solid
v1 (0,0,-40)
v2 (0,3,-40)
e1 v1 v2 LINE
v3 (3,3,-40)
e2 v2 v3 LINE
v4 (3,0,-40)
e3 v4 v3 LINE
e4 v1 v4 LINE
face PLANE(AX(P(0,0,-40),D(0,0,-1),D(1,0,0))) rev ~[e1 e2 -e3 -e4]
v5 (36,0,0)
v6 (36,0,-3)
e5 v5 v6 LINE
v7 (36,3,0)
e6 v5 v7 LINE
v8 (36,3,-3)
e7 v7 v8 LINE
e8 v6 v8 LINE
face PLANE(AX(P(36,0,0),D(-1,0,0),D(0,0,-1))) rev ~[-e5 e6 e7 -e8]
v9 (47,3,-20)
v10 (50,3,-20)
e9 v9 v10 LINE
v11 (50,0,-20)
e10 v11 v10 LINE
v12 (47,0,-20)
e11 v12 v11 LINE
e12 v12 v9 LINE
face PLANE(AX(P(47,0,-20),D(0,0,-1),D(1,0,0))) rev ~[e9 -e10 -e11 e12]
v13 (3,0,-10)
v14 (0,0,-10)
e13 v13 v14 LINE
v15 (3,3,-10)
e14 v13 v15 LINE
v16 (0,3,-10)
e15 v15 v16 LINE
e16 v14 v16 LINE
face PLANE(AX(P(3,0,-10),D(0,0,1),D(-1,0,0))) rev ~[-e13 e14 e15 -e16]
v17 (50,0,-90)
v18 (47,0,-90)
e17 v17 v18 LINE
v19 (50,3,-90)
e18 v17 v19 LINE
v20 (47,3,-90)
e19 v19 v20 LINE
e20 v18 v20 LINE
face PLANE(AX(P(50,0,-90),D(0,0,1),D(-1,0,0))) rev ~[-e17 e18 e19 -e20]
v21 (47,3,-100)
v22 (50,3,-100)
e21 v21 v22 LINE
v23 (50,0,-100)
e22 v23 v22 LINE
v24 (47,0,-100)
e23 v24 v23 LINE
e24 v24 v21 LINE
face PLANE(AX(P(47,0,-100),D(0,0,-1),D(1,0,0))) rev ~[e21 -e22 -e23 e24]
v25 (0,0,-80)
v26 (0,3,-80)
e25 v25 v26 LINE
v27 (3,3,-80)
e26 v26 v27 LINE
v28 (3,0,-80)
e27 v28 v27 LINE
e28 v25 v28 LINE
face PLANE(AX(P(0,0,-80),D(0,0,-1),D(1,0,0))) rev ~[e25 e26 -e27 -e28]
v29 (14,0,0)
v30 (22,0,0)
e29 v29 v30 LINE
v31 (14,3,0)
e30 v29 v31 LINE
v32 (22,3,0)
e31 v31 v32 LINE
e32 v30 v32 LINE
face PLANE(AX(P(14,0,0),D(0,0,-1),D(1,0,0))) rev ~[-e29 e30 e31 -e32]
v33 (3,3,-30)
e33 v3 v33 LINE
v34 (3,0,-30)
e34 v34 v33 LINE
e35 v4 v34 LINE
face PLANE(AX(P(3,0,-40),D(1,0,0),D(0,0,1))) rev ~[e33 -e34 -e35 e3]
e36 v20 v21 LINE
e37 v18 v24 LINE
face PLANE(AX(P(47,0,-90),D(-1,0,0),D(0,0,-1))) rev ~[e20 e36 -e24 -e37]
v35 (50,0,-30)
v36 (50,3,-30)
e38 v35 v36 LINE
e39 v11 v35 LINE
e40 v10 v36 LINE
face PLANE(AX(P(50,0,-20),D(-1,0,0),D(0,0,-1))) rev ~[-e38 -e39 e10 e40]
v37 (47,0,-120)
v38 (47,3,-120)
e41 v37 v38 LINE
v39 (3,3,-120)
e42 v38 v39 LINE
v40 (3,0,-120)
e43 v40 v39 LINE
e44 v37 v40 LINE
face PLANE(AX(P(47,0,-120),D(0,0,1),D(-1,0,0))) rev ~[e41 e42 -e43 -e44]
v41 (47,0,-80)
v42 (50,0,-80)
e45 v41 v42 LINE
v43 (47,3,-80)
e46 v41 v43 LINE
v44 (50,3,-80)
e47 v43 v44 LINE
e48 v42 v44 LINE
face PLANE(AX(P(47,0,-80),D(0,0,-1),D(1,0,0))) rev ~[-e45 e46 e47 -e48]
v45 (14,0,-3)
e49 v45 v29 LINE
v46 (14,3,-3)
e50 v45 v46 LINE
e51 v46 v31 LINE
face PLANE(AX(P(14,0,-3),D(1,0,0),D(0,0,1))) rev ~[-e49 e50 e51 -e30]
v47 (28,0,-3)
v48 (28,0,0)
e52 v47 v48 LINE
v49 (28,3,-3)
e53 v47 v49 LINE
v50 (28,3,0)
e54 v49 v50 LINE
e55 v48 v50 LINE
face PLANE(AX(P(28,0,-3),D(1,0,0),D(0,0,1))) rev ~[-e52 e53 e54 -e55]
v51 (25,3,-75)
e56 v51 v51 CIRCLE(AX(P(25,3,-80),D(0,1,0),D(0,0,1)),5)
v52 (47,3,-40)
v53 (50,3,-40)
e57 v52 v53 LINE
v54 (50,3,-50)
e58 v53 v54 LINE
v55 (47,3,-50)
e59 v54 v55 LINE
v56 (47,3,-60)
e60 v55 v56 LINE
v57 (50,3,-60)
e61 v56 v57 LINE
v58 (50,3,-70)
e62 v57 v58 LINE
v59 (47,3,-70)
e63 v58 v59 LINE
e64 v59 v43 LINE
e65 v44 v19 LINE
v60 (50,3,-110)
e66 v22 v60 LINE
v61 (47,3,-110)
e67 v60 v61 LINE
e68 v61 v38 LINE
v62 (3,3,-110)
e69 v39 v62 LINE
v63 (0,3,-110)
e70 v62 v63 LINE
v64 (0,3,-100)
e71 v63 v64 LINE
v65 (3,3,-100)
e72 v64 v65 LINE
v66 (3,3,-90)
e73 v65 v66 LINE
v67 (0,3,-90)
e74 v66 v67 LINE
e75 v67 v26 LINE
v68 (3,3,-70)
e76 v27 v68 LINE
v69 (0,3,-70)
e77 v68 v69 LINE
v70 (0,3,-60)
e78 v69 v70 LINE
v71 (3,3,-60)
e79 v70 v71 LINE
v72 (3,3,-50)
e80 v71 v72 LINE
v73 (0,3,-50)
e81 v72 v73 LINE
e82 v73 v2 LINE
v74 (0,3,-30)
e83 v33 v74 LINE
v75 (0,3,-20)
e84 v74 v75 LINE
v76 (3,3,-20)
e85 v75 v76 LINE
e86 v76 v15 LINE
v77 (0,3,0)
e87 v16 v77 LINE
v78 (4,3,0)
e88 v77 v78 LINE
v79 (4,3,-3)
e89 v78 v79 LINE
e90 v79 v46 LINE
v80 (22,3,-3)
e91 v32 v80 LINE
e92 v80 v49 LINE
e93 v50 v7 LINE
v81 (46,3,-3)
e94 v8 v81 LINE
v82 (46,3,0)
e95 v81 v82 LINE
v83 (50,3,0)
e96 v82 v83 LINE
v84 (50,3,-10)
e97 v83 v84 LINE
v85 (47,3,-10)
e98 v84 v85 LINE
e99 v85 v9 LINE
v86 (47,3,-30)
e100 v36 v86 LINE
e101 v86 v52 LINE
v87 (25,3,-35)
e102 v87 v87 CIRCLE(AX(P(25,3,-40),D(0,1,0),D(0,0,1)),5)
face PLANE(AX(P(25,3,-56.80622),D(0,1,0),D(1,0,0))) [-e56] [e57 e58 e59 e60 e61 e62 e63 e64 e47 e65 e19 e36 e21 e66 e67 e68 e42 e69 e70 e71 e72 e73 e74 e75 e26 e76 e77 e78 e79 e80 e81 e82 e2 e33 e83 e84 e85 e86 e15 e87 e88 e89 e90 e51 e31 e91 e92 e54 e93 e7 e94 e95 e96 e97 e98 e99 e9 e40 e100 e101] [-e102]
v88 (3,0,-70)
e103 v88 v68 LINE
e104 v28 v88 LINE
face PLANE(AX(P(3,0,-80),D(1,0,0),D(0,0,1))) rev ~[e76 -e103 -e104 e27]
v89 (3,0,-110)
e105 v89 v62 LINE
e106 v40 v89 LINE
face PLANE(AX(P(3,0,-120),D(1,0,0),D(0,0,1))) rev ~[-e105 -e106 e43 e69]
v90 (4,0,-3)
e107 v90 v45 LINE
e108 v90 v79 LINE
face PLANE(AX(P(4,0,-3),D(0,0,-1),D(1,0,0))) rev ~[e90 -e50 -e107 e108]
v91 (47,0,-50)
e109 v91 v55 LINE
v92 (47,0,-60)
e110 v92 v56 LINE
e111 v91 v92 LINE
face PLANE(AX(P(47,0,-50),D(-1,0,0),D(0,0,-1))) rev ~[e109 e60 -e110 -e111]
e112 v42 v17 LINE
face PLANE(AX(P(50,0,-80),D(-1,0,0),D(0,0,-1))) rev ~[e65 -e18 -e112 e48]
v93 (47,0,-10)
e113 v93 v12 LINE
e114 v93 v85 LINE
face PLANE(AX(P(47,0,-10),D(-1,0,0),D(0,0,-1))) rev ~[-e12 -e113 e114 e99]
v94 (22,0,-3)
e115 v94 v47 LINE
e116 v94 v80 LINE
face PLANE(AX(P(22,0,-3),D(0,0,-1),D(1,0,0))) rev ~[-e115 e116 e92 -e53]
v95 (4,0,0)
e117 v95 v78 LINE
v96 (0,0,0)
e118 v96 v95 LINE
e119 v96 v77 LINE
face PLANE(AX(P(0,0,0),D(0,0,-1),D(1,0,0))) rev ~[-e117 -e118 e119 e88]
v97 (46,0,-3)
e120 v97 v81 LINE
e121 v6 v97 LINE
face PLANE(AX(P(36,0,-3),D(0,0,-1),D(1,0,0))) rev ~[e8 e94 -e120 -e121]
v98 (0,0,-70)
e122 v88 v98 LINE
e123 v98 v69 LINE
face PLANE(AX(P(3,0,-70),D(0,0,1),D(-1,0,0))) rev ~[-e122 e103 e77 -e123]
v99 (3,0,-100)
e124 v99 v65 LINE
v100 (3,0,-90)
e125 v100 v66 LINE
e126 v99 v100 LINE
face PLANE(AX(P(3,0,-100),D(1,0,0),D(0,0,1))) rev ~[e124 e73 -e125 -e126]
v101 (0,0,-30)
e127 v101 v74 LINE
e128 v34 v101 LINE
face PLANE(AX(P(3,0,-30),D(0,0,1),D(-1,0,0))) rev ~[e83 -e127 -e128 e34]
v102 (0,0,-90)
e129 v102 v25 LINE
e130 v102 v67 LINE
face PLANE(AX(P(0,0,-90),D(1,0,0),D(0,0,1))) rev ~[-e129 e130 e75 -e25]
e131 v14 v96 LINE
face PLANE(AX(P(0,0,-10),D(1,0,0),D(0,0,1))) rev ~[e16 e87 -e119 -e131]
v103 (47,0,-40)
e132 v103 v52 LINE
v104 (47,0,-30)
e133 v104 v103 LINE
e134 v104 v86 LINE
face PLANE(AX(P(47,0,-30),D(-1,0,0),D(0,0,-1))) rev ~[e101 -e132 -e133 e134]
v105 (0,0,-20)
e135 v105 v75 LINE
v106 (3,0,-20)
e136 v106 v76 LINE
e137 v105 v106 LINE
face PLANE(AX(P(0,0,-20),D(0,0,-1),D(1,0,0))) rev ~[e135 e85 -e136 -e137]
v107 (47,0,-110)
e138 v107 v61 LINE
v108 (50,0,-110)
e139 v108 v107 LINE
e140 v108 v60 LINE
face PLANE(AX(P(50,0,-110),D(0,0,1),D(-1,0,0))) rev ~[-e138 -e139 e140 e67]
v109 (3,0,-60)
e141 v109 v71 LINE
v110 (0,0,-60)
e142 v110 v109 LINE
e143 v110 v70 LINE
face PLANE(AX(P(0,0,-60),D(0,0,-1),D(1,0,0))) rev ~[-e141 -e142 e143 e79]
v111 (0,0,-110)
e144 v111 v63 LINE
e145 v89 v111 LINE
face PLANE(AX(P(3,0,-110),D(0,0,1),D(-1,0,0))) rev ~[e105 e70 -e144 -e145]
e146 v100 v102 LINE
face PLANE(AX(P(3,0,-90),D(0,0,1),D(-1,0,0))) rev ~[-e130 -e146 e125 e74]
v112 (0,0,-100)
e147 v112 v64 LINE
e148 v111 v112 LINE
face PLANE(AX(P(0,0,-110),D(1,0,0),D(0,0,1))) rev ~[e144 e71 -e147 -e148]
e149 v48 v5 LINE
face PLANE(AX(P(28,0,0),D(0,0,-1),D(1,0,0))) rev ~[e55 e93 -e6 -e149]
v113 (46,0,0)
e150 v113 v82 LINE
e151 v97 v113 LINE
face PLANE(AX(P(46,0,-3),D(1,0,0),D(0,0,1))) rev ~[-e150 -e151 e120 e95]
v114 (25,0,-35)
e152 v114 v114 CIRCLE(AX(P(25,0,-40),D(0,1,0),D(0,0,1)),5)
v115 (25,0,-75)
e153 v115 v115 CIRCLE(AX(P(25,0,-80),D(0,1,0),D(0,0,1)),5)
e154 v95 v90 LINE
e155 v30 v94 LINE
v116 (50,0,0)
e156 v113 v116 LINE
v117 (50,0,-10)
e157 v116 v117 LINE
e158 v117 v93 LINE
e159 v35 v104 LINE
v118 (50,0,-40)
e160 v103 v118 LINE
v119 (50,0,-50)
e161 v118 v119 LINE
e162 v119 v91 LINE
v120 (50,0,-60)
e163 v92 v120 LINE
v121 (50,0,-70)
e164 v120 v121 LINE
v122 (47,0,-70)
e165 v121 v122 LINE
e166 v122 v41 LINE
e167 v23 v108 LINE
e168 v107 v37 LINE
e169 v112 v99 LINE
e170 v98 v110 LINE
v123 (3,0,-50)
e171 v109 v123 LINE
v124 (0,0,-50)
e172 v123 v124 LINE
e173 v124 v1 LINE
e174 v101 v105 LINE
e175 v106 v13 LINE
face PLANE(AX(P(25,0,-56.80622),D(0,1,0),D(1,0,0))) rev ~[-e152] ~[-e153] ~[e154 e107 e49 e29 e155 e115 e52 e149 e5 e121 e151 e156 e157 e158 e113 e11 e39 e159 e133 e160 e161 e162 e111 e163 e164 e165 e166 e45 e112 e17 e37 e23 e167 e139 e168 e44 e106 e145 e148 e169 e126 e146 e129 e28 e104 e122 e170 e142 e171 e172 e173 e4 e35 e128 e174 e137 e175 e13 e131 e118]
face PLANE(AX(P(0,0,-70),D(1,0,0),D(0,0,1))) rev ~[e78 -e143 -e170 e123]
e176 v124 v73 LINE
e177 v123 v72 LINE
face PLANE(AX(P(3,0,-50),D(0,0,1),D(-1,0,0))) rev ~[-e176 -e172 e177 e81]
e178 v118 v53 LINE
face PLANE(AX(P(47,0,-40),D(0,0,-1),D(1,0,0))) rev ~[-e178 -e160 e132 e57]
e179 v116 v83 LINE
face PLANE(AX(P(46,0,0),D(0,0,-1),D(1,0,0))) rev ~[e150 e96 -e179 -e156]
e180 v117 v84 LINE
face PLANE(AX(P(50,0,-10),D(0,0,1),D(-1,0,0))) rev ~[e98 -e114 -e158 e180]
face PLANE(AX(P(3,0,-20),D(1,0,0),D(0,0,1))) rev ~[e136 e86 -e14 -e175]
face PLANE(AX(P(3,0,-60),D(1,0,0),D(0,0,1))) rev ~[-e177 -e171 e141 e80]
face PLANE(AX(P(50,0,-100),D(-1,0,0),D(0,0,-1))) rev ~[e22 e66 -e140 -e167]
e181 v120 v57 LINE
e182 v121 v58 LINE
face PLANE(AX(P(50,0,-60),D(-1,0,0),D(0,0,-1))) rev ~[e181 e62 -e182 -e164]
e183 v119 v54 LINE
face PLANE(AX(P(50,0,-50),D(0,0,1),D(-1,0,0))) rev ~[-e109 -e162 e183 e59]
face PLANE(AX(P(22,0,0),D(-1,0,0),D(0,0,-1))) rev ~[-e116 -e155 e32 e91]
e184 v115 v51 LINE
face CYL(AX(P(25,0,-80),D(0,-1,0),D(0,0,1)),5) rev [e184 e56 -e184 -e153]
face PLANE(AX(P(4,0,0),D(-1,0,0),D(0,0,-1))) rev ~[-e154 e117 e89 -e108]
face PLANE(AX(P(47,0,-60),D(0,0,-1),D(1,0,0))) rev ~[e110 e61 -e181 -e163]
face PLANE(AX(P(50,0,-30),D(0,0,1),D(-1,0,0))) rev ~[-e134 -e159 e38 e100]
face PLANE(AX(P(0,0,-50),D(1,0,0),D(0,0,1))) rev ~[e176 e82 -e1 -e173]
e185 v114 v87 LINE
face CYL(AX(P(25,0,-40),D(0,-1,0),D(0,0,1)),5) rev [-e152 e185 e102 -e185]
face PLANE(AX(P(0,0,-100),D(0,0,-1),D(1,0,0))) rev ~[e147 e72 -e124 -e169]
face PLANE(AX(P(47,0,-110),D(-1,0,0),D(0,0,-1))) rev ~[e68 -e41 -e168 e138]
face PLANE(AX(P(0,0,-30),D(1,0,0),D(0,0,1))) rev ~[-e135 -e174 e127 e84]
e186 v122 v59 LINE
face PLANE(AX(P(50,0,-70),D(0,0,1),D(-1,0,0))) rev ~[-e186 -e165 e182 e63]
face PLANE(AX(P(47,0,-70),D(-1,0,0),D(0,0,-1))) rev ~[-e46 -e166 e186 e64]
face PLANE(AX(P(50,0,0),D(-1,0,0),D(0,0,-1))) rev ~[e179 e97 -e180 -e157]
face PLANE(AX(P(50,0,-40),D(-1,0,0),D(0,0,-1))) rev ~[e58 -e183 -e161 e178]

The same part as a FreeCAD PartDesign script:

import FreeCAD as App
import Part
import Sketcher


def add_polygon(sketch, points):
    """Adds a closed chain of lines whose ends are joined by coincident constraints."""
    first, n = sketch.GeometryCount, len(points)
    for a, b in zip(points, points[1:] + points[:1]):
        sketch.addGeometry(Part.LineSegment(App.Vector(*a, 0), App.Vector(*b, 0)), False)
    for i in range(n):
        sketch.addConstraint(Sketcher.Constraint("Coincident", first + i, 2, first + (i + 1) % n, 1))

doc = App.newDocument("Part")
params = doc.addObject("Spreadsheet::Sheet", "Params")
for row, (alias, value) in enumerate([
    ("sketch1_diameter", "10 mm"),
    ("sketch1_width", "3 mm"),
    ("sketch1_width2", "4 mm"),
    ("sketch1_width3", "10 mm"),
    ("sketch1_width4", "8 mm"),
    ("pad1_length", "3 mm"),
], start=1):
    params.set(f"A{row}", alias)
    params.set(f"B{row}", "=" + value)
    params.setAlias(f"B{row}", alias)

body = doc.addObject("PartDesign::Body", "Body")

sketch1 = body.newObject("Sketcher::SketchObject", "Sketch")
sketch1.AttachmentSupport = (doc.getObject("XZ_Plane"), [""])
sketch1.MapMode = "FlatFace"
add_polygon(sketch1, [(3, -10), (0, -10), (0, 0), (4, 0), (4, -3), (14, -3), (14, 0), (22, 0), (22, -3), (28, -3), (28, 0), (36, 0), (36, -3), (46, -3), (46, 0), (50, 0), (50, -10), (47, -10), (47, -20), (50, -20), (50, -30), (47, -30), (47, -40), (50, -40), (50, -50), (47, -50), (47, -60), (50, -60), (50, -70), (47, -70), (47, -80), (50, -80), (50, -90), (47, -90), (47, -100), (50, -100), (50, -110), (47, -110), (47, -120), (3, -120), (3, -110), (0, -110), (0, -100), (3, -100), (3, -90), (0, -90), (0, -80), (3, -80), (3, -70), (0, -70), (0, -60), (3, -60), (3, -50), (0, -50), (0, -40), (3, -40), (3, -30), (0, -30), (0, -20), (3, -20)])
sketch1.addGeometry(Part.Circle(App.Vector(25, -40, 0), App.Vector(0, 0, 1), 5), False)
sketch1.addGeometry(Part.Circle(App.Vector(25, -80, 0), App.Vector(0, 0, 1), 5), False)
sketch1.addConstraint(Sketcher.Constraint("Horizontal", 0))
sketch1.addConstraint(Sketcher.Constraint("Vertical", 1))
sketch1.addConstraint(Sketcher.Constraint("Horizontal", 2))
sketch1.addConstraint(Sketcher.Constraint("Vertical", 3))
sketch1.addConstraint(Sketcher.Constraint("Horizontal", 4))
sketch1.addConstraint(Sketcher.Constraint("Vertical", 5))
sketch1.addConstraint(Sketcher.Constraint("Horizontal", 6))
sketch1.addConstraint(Sketcher.Constraint("Vertical", 7))
sketch1.addConstraint(Sketcher.Constraint("Horizontal", 8))
sketch1.addConstraint(Sketcher.Constraint("Vertical", 9))
sketch1.addConstraint(Sketcher.Constraint("Horizontal", 10))
sketch1.addConstraint(Sketcher.Constraint("Vertical", 11))
sketch1.addConstraint(Sketcher.Constraint("Horizontal", 12))
sketch1.addConstraint(Sketcher.Constraint("Vertical", 13))
sketch1.addConstraint(Sketcher.Constraint("Horizontal", 14))
sketch1.addConstraint(Sketcher.Constraint("Vertical", 15))
sketch1.addConstraint(Sketcher.Constraint("Horizontal", 16))
sketch1.addConstraint(Sketcher.Constraint("Vertical", 17))
sketch1.addConstraint(Sketcher.Constraint("Horizontal", 18))
sketch1.addConstraint(Sketcher.Constraint("Vertical", 19))
sketch1.addConstraint(Sketcher.Constraint("Horizontal", 20))
sketch1.addConstraint(Sketcher.Constraint("Vertical", 21))
sketch1.addConstraint(Sketcher.Constraint("Horizontal", 22))
sketch1.addConstraint(Sketcher.Constraint("Vertical", 23))
sketch1.addConstraint(Sketcher.Constraint("Horizontal", 24))
sketch1.addConstraint(Sketcher.Constraint("Vertical", 25))
sketch1.addConstraint(Sketcher.Constraint("Horizontal", 26))
sketch1.addConstraint(Sketcher.Constraint("Vertical", 27))
sketch1.addConstraint(Sketcher.Constraint("Horizontal", 28))
sketch1.addConstraint(Sketcher.Constraint("Vertical", 29))
sketch1.addConstraint(Sketcher.Constraint("Horizontal", 30))
sketch1.addConstraint(Sketcher.Constraint("Vertical", 31))
sketch1.addConstraint(Sketcher.Constraint("Horizontal", 32))
sketch1.addConstraint(Sketcher.Constraint("Vertical", 33))
sketch1.addConstraint(Sketcher.Constraint("Horizontal", 34))
sketch1.addConstraint(Sketcher.Constraint("Vertical", 35))
sketch1.addConstraint(Sketcher.Constraint("Horizontal", 36))
sketch1.addConstraint(Sketcher.Constraint("Vertical", 37))
sketch1.addConstraint(Sketcher.Constraint("Horizontal", 38))
sketch1.addConstraint(Sketcher.Constraint("Vertical", 39))
sketch1.addConstraint(Sketcher.Constraint("Horizontal", 40))
sketch1.addConstraint(Sketcher.Constraint("Vertical", 41))
sketch1.addConstraint(Sketcher.Constraint("Horizontal", 42))
sketch1.addConstraint(Sketcher.Constraint("Vertical", 43))
sketch1.addConstraint(Sketcher.Constraint("Horizontal", 44))
sketch1.addConstraint(Sketcher.Constraint("Vertical", 45))
sketch1.addConstraint(Sketcher.Constraint("Horizontal", 46))
sketch1.addConstraint(Sketcher.Constraint("Vertical", 47))
sketch1.addConstraint(Sketcher.Constraint("Horizontal", 48))
sketch1.addConstraint(Sketcher.Constraint("Vertical", 49))
sketch1.addConstraint(Sketcher.Constraint("Horizontal", 50))
sketch1.addConstraint(Sketcher.Constraint("Vertical", 51))
sketch1.addConstraint(Sketcher.Constraint("Horizontal", 52))
sketch1.addConstraint(Sketcher.Constraint("Vertical", 53))
sketch1.addConstraint(Sketcher.Constraint("Horizontal", 54))
sketch1.addConstraint(Sketcher.Constraint("Vertical", 55))
sketch1.addConstraint(Sketcher.Constraint("Horizontal", 56))
sketch1.addConstraint(Sketcher.Constraint("Vertical", 57))
sketch1.addConstraint(Sketcher.Constraint("Horizontal", 58))
sketch1.addConstraint(Sketcher.Constraint("Vertical", 59))
sketch1.addConstraint(Sketcher.Constraint("Coincident", 1, 2, -1, 1))
sketch1.addConstraint(Sketcher.Constraint("Equal", 60, 61))
sketch1.addConstraint(Sketcher.Constraint("PointOnObject", 5, 2, -1))
sketch1.addConstraint(Sketcher.Constraint("PointOnObject", 9, 2, -1))
sketch1.addConstraint(Sketcher.Constraint("PointOnObject", 13, 2, -1))
sketch1.addConstraint(Sketcher.Constraint("PointOnObject", 40, 2, -2))
sketch1.addConstraint(Sketcher.Constraint("PointOnObject", 44, 2, -2))
sketch1.addConstraint(Sketcher.Constraint("PointOnObject", 48, 2, -2))
sketch1.addConstraint(Sketcher.Constraint("PointOnObject", 52, 2, -2))
sketch1.addConstraint(Sketcher.Constraint("PointOnObject", 56, 2, -2))
sketch1.addConstraint(Sketcher.Constraint("Horizontal", 4, 2, 7, 2))
sketch1.addConstraint(Sketcher.Constraint("Horizontal", 8, 2, 11, 2))
sketch1.addConstraint(Sketcher.Constraint("Horizontal", 0, 2, 15, 2))
sketch1.addConstraint(Sketcher.Constraint("Horizontal", 60, 3, 21, 2))
sketch1.addConstraint(Sketcher.Constraint("Horizontal", 61, 3, 29, 2))
sketch1.addConstraint(Sketcher.Constraint("Horizontal", 36, 2, 39, 2))
sketch1.addConstraint(Sketcher.Constraint("Horizontal", 34, 2, 41, 2))
sketch1.addConstraint(Sketcher.Constraint("Horizontal", 32, 2, 43, 2))
sketch1.addConstraint(Sketcher.Constraint("Horizontal", 30, 2, 45, 2))
sketch1.addConstraint(Sketcher.Constraint("Horizontal", 28, 2, 47, 2))
sketch1.addConstraint(Sketcher.Constraint("Horizontal", 26, 2, 49, 2))
sketch1.addConstraint(Sketcher.Constraint("Horizontal", 24, 2, 51, 2))
sketch1.addConstraint(Sketcher.Constraint("Horizontal", 22, 2, 53, 2))
sketch1.addConstraint(Sketcher.Constraint("Horizontal", 20, 2, 55, 2))
sketch1.addConstraint(Sketcher.Constraint("Horizontal", 18, 2, 57, 2))
sketch1.addConstraint(Sketcher.Constraint("Vertical", 60, 3, 61, 3))
sketch1.addConstraint(Sketcher.Constraint("Vertical", 15, 2, 18, 2))
sketch1.addConstraint(Sketcher.Constraint("Vertical", 17, 2, 20, 2))
sketch1.addConstraint(Sketcher.Constraint("Vertical", 19, 2, 22, 2))
sketch1.addConstraint(Sketcher.Constraint("Vertical", 21, 2, 24, 2))
sketch1.addConstraint(Sketcher.Constraint("Vertical", 23, 2, 26, 2))
sketch1.addConstraint(Sketcher.Constraint("Vertical", 25, 2, 28, 2))
sketch1.addConstraint(Sketcher.Constraint("Vertical", 27, 2, 30, 2))
sketch1.addConstraint(Sketcher.Constraint("Vertical", 29, 2, 32, 2))
sketch1.addConstraint(Sketcher.Constraint("Vertical", 31, 2, 34, 2))
sketch1.addConstraint(Sketcher.Constraint("Vertical", 33, 2, 36, 2))
sketch1.addConstraint(Sketcher.Constraint("Vertical", 39, 2, 42, 2))
sketch1.addConstraint(Sketcher.Constraint("Vertical", 43, 2, 46, 2))
sketch1.addConstraint(Sketcher.Constraint("Vertical", 47, 2, 50, 2))
sketch1.addConstraint(Sketcher.Constraint("Vertical", 51, 2, 54, 2))
sketch1.addConstraint(Sketcher.Constraint("Vertical", 55, 2, 58, 2))
sketch1.addConstraint(Sketcher.Constraint("Equal", 6, 10))
sketch1.addConstraint(Sketcher.Constraint("Equal", 4, 12))
sketch1.addConstraint(Sketcher.Constraint("Equal", 2, 14))
sketch1.addConstraint(Sketcher.Constraint("Equal", 0, 16))
sketch1.addConstraint(Sketcher.Constraint("Equal", 12, 1))
sketch1.addConstraint(Sketcher.Constraint("Equal", 58, 3))
sketch1.addConstraint(Sketcher.Constraint("Equal", 15, 17))
sketch1.addConstraint(Sketcher.Constraint("Equal", 17, 19))
sketch1.addConstraint(Sketcher.Constraint("Equal", 19, 21))
sketch1.addConstraint(Sketcher.Constraint("Equal", 21, 23))
sketch1.addConstraint(Sketcher.Constraint("Equal", 23, 25))
sketch1.addConstraint(Sketcher.Constraint("Equal", 25, 27))
sketch1.addConstraint(Sketcher.Constraint("Equal", 27, 29))
sketch1.addConstraint(Sketcher.Constraint("Equal", 29, 31))
sketch1.addConstraint(Sketcher.Constraint("Equal", 31, 33))
sketch1.addConstraint(Sketcher.Constraint("Equal", 33, 35))
sketch1.addConstraint(Sketcher.Constraint("Equal", 35, 37))
sketch1.addConstraint(Sketcher.Constraint("Diameter", 60, 10.0))
sketch1.addConstraint(Sketcher.Constraint("DistanceX", 0, 2, 0, 1, 3.0))
sketch1.addConstraint(Sketcher.Constraint("DistanceX", 2, 1, 2, 2, 4.0))
sketch1.addConstraint(Sketcher.Constraint("DistanceX", 4, 1, 4, 2, 10.0))
sketch1.addConstraint(Sketcher.Constraint("DistanceX", 6, 1, 6, 2, 8.0))
sketch1.addConstraint(Sketcher.Constraint("DistanceX", 8, 1, 8, 2, 6.0))
sketch1.addConstraint(Sketcher.Constraint("DistanceX", -1, 1, 60, 3, 25.0))
sketch1.setExpression("Constraints[178]", "Params.sketch1_diameter")
sketch1.setExpression("Constraints[179]", "Params.sketch1_width")
sketch1.setExpression("Constraints[180]", "Params.sketch1_width2")
sketch1.setExpression("Constraints[181]", "Params.sketch1_width3")
sketch1.setExpression("Constraints[182]", "Params.sketch1_width4")
pad1 = body.newObject("PartDesign::Pad", "Pad")
pad1.Profile = sketch1
pad1.setExpression("Length", "Params.pad1_length")
pad1.Reversed = True

doc.recompute()
